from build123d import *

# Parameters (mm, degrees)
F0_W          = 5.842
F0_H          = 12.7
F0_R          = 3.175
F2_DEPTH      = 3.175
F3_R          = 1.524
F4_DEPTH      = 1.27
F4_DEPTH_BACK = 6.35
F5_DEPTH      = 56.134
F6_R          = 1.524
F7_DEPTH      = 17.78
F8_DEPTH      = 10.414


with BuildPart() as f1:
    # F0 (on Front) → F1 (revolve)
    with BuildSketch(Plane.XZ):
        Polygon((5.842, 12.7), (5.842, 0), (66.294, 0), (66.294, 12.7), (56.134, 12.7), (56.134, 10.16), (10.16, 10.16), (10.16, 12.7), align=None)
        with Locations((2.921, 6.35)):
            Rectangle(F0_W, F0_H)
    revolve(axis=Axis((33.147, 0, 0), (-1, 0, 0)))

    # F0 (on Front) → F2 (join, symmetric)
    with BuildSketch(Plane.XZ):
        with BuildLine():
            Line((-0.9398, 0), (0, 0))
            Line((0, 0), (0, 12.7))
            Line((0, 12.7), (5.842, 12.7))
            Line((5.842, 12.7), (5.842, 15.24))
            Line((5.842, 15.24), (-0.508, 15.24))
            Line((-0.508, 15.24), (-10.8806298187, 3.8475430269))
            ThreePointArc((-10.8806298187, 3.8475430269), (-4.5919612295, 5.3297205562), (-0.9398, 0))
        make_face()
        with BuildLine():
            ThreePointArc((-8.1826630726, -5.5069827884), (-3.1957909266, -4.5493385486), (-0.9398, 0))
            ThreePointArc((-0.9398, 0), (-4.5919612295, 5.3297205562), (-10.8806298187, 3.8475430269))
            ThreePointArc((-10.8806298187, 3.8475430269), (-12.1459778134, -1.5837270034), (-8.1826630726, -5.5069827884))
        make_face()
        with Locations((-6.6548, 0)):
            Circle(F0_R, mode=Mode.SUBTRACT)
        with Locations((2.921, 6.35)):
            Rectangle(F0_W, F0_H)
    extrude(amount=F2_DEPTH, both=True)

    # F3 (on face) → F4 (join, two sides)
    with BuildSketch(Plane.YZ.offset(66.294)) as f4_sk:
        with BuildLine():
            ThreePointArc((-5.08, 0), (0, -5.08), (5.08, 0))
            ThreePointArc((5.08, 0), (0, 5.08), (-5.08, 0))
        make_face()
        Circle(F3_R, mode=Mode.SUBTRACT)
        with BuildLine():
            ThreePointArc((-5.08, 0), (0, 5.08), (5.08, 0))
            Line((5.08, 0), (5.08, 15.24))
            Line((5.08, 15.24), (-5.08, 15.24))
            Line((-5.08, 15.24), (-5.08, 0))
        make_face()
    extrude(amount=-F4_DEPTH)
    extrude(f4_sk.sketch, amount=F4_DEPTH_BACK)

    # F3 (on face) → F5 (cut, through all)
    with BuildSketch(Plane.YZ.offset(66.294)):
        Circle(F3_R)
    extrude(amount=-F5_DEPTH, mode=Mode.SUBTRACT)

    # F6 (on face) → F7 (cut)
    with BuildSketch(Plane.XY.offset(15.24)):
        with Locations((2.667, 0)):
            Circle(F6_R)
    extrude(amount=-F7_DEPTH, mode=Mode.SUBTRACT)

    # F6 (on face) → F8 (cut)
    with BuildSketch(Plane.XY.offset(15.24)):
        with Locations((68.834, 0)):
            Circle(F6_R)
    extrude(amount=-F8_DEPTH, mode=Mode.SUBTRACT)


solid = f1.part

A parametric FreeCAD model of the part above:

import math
import FreeCAD as App
import Part
import Sketcher

V = App.Vector
Q = App.Units.Quantity

doc = App.newDocument("Part")
params = doc.addObject("Spreadsheet::Sheet", "Params")
for row, (alias, value) in enumerate([
    ("sketch1_width", "0.4 in"),
    ("sketch1_height", "0.5 in"),
    ("sketch1_height2", "0.1 in"),
    ("sketch1_width2", "1.81 in"),
    ("revolution_angle", "360 deg"),
    ("sketch2_diameter", "0.25 in"),
    ("sketch2_height", "0.6 in"),
    ("sketch2_radius", "0.225 in"),
    ("sketch2_width", "0.25 in"),
    ("sketch2_width2", "0.267 in"),
    ("pad1_length", "0.25 in"),
    ("sketch3_radius", "0.2 in"),
    ("sketch3_diameter", "0.12 in"),
    ("sketch3_height", "0.6 in"),
    ("pad2_length", "0.05 in"),
    ("pad2_length2", "0.25 in"),
    ("sketch4_diameter", "0.12 in"),
    ("pocket1_length", "2.21 in"),
    ("sketch5_diameter", "0.12 in"),
    ("pocket2_length", "0.7 in"),
    ("sketch6_diameter", "0.12 in"),
    ("pocket3_length", "0.41 in"),
], start=1):
    params.set(f"A{row}", alias)
    params.set(f"B{row}", "=" + value)
    params.setAlias(f"B{row}", alias)

body = doc.addObject("PartDesign::Body", "Body")

sketch1 = body.newObject("Sketcher::SketchObject", "Sketch")
sketch1.AttachmentSupport = (doc.getObject("XZ_Plane"), [""])
sketch1.MapMode = "FlatFace"
sketch1.addGeometry([
    Part.LineSegment(V(66.3, 0, 0), V(66.3, 12.7, 0)),
    Part.LineSegment(V(66.3, 12.7, 0), V(56.1, 12.7, 0)),
    Part.LineSegment(V(56.1, 12.7, 0), V(56.1, 10.2, 0)),
    Part.LineSegment(V(56.1, 10.2, 0), V(10.2, 10.2, 0)),
    Part.LineSegment(V(10.2, 10.2, 0), V(10.2, 12.7, 0)),
    Part.LineSegment(V(10.2, 12.7, 0), V(0, 12.7, 0)),
    Part.LineSegment(V(0, 12.7, 0), V(0, 0, 0)),
    Part.LineSegment(V(0, 0, 0), V(66.3, 0, 0)),
], False)
sketch1.addConstraint([
    Sketcher.Constraint("Coincident", 0, 2, 1, 1),
    Sketcher.Constraint("Coincident", 1, 2, 2, 1),
    Sketcher.Constraint("Coincident", 2, 2, 3, 1),
    Sketcher.Constraint("Coincident", 3, 2, 4, 1),
    Sketcher.Constraint("Coincident", 4, 2, 5, 1),
    Sketcher.Constraint("Coincident", 5, 2, 6, 1),
    Sketcher.Constraint("Coincident", 6, 2, 7, 1),
    Sketcher.Constraint("Coincident", 7, 2, 0, 1),
    Sketcher.Constraint("Vertical", 0),
    Sketcher.Constraint("Horizontal", 1),
    Sketcher.Constraint("Vertical", 2),
    Sketcher.Constraint("Horizontal", 3),
    Sketcher.Constraint("Vertical", 4),
    Sketcher.Constraint("Horizontal", 5),
    Sketcher.Constraint("Vertical", 6),
    Sketcher.Constraint("Horizontal", 7),
    Sketcher.Constraint("Coincident", 6, 2, -1, 1),
    Sketcher.Constraint("Horizontal", 1, 2, 4, 2),
    Sketcher.Constraint("Equal", 1, 5),
    Sketcher.Constraint("DistanceX", 1, 2, 1, 1, Q("0.4 in")),
    Sketcher.Constraint("DistanceY", 0, 1, 0, 2, Q("0.5 in")),
    Sketcher.Constraint("DistanceY", 2, 2, 2, 1, Q("0.1 in")),
    Sketcher.Constraint("DistanceX", 3, 2, 3, 1, Q("1.81 in")),
])
sketch1.setExpression("Constraints[19]", "Params.sketch1_width")
sketch1.setExpression("Constraints[20]", "Params.sketch1_height")
sketch1.setExpression("Constraints[21]", "Params.sketch1_height2")
sketch1.setExpression("Constraints[22]", "Params.sketch1_width2")
revolution = body.newObject("PartDesign::Revolution", "Revolution")
revolution.Profile = sketch1
revolution.ReferenceAxis = (sketch1, ["H_Axis"])
revolution.setExpression("Angle", "Params.revolution_angle")

sketch2 = body.newObject("Sketcher::SketchObject", "Sketch001")
sketch2.AttachmentSupport = (doc.getObject("XZ_Plane"), [""])
sketch2.MapMode = "FlatFace"
sketch2.addGeometry([
    Part.LineSegment(V(-0.9, 0, 0), V(5.8, 0, 0)),
    Part.LineSegment(V(5.8, 0, 0), V(5.8, 15.2, 0)),
    Part.LineSegment(V(5.8, 15.2, 0), V(-0.5, 15.2, 0)),
    Part.LineSegment(V(-0.5, 15.2, 0), V(-10.9, 3.8, 0)),
    Part.ArcOfCircle(Part.Circle(V(-6.7, 0, 0), V(0, 0, 1), 5.7), math.radians(138), math.radians(254)),
    Part.ArcOfCircle(Part.Circle(V(-6.7, 0, 0), V(0, 0, 1), 5.7), math.radians(-106), math.radians(0)),
    Part.Circle(V(-6.7, 0, 0), V(0, 0, 1), 3.2),
], False)
sketch2.addConstraint([
    Sketcher.Constraint("Coincident", 0, 2, 1, 1),
    Sketcher.Constraint("Coincident", 1, 2, 2, 1),
    Sketcher.Constraint("Coincident", 2, 2, 3, 1),
    Sketcher.Constraint("Tangent", 3, 2, 4, 1),
    Sketcher.Constraint("Tangent", 4, 2, 5, 1),
    Sketcher.Constraint("Coincident", 5, 2, 0, 1),
    Sketcher.Constraint("Horizontal", 0),
    Sketcher.Constraint("Vertical", 1),
    Sketcher.Constraint("Horizontal", 2),
    Sketcher.Constraint("Coincident", 6, 3, 4, 3),
    Sketcher.Constraint("Equal", 4, 5),
    Sketcher.Constraint("PointOnObject", 4, 3, -1),
    Sketcher.Constraint("PointOnObject", 0, 2, -1),
    Sketcher.Constraint("Diameter", 6, Q("0.25 in")),
    Sketcher.Constraint("DistanceY", 1, 1, 1, 2, Q("0.6 in")),
    Sketcher.Constraint("Radius", 4, Q("0.225 in")),
    Sketcher.Constraint("DistanceX", 2, 2, 2, 1, Q("0.25 in")),
    Sketcher.Constraint("DistanceX", 0, 1, 0, 2, Q("0.267 in")),
    Sketcher.Constraint("DistanceX", -1, 1, 0, 2, Q("0.23 in")),
    Sketcher.Constraint("DistanceX", 4, 2, -1, 1, Q("8.182663 mm")),
])
sketch2.setExpression("Constraints[13]", "Params.sketch2_diameter")
sketch2.setExpression("Constraints[14]", "Params.sketch2_height")
sketch2.setExpression("Constraints[15]", "Params.sketch2_radius")
sketch2.setExpression("Constraints[16]", "Params.sketch2_width")
sketch2.setExpression("Constraints[17]", "Params.sketch2_width2")
pad1 = body.newObject("PartDesign::Pad", "Pad")
pad1.Profile = sketch2
pad1.setExpression("Length", "Params.pad1_length")
pad1.Midplane = True

sketch3 = body.newObject("Sketcher::SketchObject", "Sketch002")
sketch3.AttachmentSupport = (doc.getObject("YZ_Plane"), [""])
sketch3.MapMode = "FlatFace"
sketch3.AttachmentOffset = App.Placement(V(0, 0, 2.61 * 25.4), App.Rotation())
sketch3.addGeometry([
    Part.ArcOfCircle(Part.Circle(V(0, 0, 0), V(0, 0, 1), 5.1), math.radians(180), math.radians(360)),
    Part.LineSegment(V(5.1, 0, 0), V(5.1, 15.2, 0)),
    Part.LineSegment(V(5.1, 15.2, 0), V(-5.1, 15.2, 0)),
    Part.LineSegment(V(-5.1, 15.2, 0), V(-5.1, 0, 0)),
    Part.Circle(V(0, 0, 0), V(0, 0, 1), 1.5),
], False)
sketch3.addConstraint([
    Sketcher.Constraint("Tangent", 0, 2, 1, 1),
    Sketcher.Constraint("Coincident", 1, 2, 2, 1),
    Sketcher.Constraint("Coincident", 2, 2, 3, 1),
    Sketcher.Constraint("Tangent", 3, 2, 0, 1),
    Sketcher.Constraint("Vertical", 1),
    Sketcher.Constraint("Horizontal", 2),
    Sketcher.Constraint("Vertical", 3),
    Sketcher.Constraint("Coincident", 0, 3, -1, 1),
    Sketcher.Constraint("Coincident", 4, 3, -1, 1),
    Sketcher.Constraint("Radius", 0, Q("0.2 in")),
    Sketcher.Constraint("Diameter", 4, Q("0.12 in")),
    Sketcher.Constraint("DistanceY", 1, 1, 1, 2, Q("0.6 in")),
])
sketch3.setExpression("Constraints[9]", "Params.sketch3_radius")
sketch3.setExpression("Constraints[10]", "Params.sketch3_diameter")
sketch3.setExpression("Constraints[11]", "Params.sketch3_height")
pad2 = body.newObject("PartDesign::Pad", "Pad001")
pad2.Profile = sketch3
pad2.Type = "TwoLengths"
pad2.setExpression("Length", "Params.pad2_length")
pad2.setExpression("Length2", "Params.pad2_length2")
pad2.Reversed = True

sketch4 = body.newObject("Sketcher::SketchObject", "Sketch003")
sketch4.AttachmentSupport = (doc.getObject("YZ_Plane"), [""])
sketch4.MapMode = "FlatFace"
sketch4.AttachmentOffset = App.Placement(V(0, 0, 2.61 * 25.4), App.Rotation())
sketch4.addGeometry(Part.Circle(V(0, 0, 0), V(0, 0, 1), 1.5), False)
sketch4.addConstraint([
    Sketcher.Constraint("Coincident", 0, 3, -1, 1),
    Sketcher.Constraint("Diameter", 0, Q("0.12 in")),
])
sketch4.setExpression("Constraints[1]", "Params.sketch4_diameter")
pocket1 = body.newObject("PartDesign::Pocket", "Pocket")
pocket1.Profile = sketch4
pocket1.setExpression("Length", "Params.pocket1_length")

sketch5 = body.newObject("Sketcher::SketchObject", "Sketch004")
sketch5.AttachmentSupport = (doc.getObject("XY_Plane"), [""])
sketch5.MapMode = "FlatFace"
sketch5.AttachmentOffset = App.Placement(V(0, 0, 0.6 * 25.4), App.Rotation())
sketch5.addGeometry(Part.Circle(V(2.7, 0, 0), V(0, 0, 1), 1.5), False)
sketch5.addConstraint([
    Sketcher.Constraint("PointOnObject", 0, 3, -1),
    Sketcher.Constraint("Diameter", 0, Q("0.12 in")),
    Sketcher.Constraint("DistanceX", -1, 1, 0, 3, Q("0.105 in")),
])
sketch5.setExpression("Constraints[1]", "Params.sketch5_diameter")
pocket2 = body.newObject("PartDesign::Pocket", "Pocket001")
pocket2.Profile = sketch5
pocket2.setExpression("Length", "Params.pocket2_length")

sketch6 = body.newObject("Sketcher::SketchObject", "Sketch005")
sketch6.AttachmentSupport = (doc.getObject("XY_Plane"), [""])
sketch6.MapMode = "FlatFace"
sketch6.AttachmentOffset = App.Placement(V(0, 0, 0.6 * 25.4), App.Rotation())
sketch6.addGeometry(Part.Circle(V(68.8, 0, 0), V(0, 0, 1), 1.5), False)
sketch6.addConstraint([
    Sketcher.Constraint("PointOnObject", 0, 3, -1),
    Sketcher.Constraint("Diameter", 0, Q("0.12 in")),
    Sketcher.Constraint("DistanceX", -1, 1, 0, 3, Q("2.71 in")),
])
sketch6.setExpression("Constraints[1]", "Params.sketch6_diameter")
pocket3 = body.newObject("PartDesign::Pocket", "Pocket002")
pocket3.Profile = sketch6
pocket3.setExpression("Length", "Params.pocket3_length")

doc.recompute()
